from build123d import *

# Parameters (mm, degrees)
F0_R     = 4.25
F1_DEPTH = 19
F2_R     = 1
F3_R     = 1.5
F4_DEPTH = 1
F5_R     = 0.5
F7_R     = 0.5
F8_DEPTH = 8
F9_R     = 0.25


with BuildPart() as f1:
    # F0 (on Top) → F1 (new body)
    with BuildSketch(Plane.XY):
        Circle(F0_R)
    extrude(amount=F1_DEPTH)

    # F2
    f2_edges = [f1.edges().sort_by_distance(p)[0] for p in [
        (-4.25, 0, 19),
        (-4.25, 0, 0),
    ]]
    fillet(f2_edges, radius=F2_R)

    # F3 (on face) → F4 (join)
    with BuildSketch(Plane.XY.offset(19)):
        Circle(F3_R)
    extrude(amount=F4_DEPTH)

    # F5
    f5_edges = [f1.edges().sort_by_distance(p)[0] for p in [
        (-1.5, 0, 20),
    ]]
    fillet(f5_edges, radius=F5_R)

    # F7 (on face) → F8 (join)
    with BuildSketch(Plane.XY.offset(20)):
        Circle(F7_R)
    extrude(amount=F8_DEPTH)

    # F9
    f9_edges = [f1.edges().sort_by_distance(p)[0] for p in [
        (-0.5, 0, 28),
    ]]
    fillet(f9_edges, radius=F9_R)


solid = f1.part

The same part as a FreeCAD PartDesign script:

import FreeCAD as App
import Part
import Sketcher

V = App.Vector
Q = App.Units.Quantity


def edges_at(feature, points):
    """Names of the edges that pass closest to the given points."""
    edges = feature.Shape.Edges
    near = lambda p: min(range(len(edges)), key=lambda i: edges[i].distToShape(Part.Vertex(*p))[0])
    return sorted({f"Edge{near(p) + 1}" for p in points})

doc = App.newDocument("Part")
body = doc.addObject("PartDesign::Body", "Body")

# Sketch on XY plane
sketch1 = doc.addObject("Sketcher::SketchObject", "Sketch")
body.addObject(sketch1)
sketch1.AttachmentSupport = (doc.XY_Plane, [""])
sketch1.MapMode = "FlatFace"
sketch1.addGeometry(Part.Circle(V(0, 0, 0), V(0, 0, 1), 4.2), False)
sketch1.addConstraint([
    Sketcher.Constraint("Coincident", 0, 3, -1, 1),
    Sketcher.Constraint("Diameter", 0, Q("8.5 mm")),
])
pad1 = doc.addObject("PartDesign::Pad", "Pad")
body.addObject(pad1)
pad1.Profile = sketch1
pad1.Length = 19
doc.recompute()

fillet = doc.addObject("PartDesign::Fillet", "Fillet")
body.addObject(fillet)
fillet.Base = (pad1, edges_at(pad1, [(-4.25, 0, 19), (-4.25, 0, 0)]))
fillet.Radius = 1

# Sketch on XY plane
sketch2 = doc.addObject("Sketcher::SketchObject", "Sketch001")
body.addObject(sketch2)
sketch2.AttachmentSupport = (doc.XY_Plane, [""])
sketch2.MapMode = "FlatFace"
sketch2.AttachmentOffset = App.Placement(V(0, 0, 19), App.Rotation())
sketch2.addGeometry(Part.Circle(V(0, 0, 0), V(0, 0, 1), 1.5), False)
sketch2.addConstraint([
    Sketcher.Constraint("Coincident", 0, 3, -1, 1),
    Sketcher.Constraint("Diameter", 0, Q("3 mm")),
])
pad2 = doc.addObject("PartDesign::Pad", "Pad001")
body.addObject(pad2)
pad2.Profile = sketch2
pad2.Length = 1
doc.recompute()

fillet2 = doc.addObject("PartDesign::Fillet", "Fillet001")
body.addObject(fillet2)
fillet2.Base = (pad2, edges_at(pad2, [(-1.5, 0, 20)]))
fillet2.Radius = 0.5

# Sketch on XY plane
sketch3 = doc.addObject("Sketcher::SketchObject", "Sketch002")
body.addObject(sketch3)
sketch3.AttachmentSupport = (doc.XY_Plane, [""])
sketch3.MapMode = "FlatFace"
sketch3.AttachmentOffset = App.Placement(V(0, 0, 20), App.Rotation())
sketch3.addGeometry(Part.Circle(V(0, 0, 0), V(0, 0, 1), 0.5), False)
sketch3.addConstraint([
    Sketcher.Constraint("Coincident", 0, 3, -1, 1),
    Sketcher.Constraint("Diameter", 0, Q("1 mm")),
])
pad3 = doc.addObject("PartDesign::Pad", "Pad002")
body.addObject(pad3)
pad3.Profile = sketch3
pad3.Length = 8
doc.recompute()

fillet3 = doc.addObject("PartDesign::Fillet", "Fillet002")
body.addObject(fillet3)
fillet3.Base = (pad3, edges_at(pad3, [(-0.5, 0, 28)]))
fillet3.Radius = 0.25

doc.recompute()
